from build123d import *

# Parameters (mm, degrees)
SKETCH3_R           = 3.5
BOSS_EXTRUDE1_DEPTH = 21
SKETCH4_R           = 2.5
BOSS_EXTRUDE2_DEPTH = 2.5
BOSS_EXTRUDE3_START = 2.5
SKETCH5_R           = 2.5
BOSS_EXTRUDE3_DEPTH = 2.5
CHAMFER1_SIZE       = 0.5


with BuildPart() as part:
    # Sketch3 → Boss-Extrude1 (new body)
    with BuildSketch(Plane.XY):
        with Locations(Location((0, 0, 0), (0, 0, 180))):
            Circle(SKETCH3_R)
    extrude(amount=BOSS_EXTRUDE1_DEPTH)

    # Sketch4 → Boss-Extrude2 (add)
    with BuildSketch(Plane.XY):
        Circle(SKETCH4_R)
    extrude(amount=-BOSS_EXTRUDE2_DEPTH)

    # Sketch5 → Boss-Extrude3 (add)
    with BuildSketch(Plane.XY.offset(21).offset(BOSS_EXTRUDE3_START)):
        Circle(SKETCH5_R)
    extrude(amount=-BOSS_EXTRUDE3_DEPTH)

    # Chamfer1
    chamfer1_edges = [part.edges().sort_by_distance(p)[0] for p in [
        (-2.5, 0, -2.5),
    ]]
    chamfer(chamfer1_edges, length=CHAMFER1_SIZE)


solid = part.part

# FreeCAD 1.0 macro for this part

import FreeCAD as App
import Part
import Sketcher
from FreeCAD import Vector
Q = App.Units.Quantity


def edges_at(feature, points):
    """Names of the edges that pass closest to the given points."""
    edges = feature.Shape.Edges
    near = lambda p: min(range(len(edges)), key=lambda i: edges[i].distToShape(Part.Vertex(*p))[0])
    return sorted({f"Edge{near(p) + 1}" for p in points})

doc = App.newDocument("Part")
body = doc.addObject("PartDesign::Body", "Body")

# Sketch on XY plane
sketch1 = body.newObject("Sketcher::SketchObject", "Sketch")
sketch1.AttachmentSupport = (doc.getObject("XY_Plane"), [""])
sketch1.MapMode = "FlatFace"
sketch1.addGeometry(Part.Circle(Vector(0, 0, 0), Vector(0, 0, 1), 3.5), False)
sketch1.addConstraint(Sketcher.Constraint("Coincident", 0, 3, -1, 1))
sketch1.addConstraint(Sketcher.Constraint("Diameter", 0, Q("7 mm")))
pad1 = body.newObject("PartDesign::Pad", "Pad")
pad1.Profile = sketch1
pad1.Length = 21

# Sketch on XY plane
sketch2 = body.newObject("Sketcher::SketchObject", "Sketch001")
sketch2.AttachmentSupport = (doc.getObject("XY_Plane"), [""])
sketch2.MapMode = "FlatFace"
sketch2.addGeometry(Part.Circle(Vector(0, 0, 0), Vector(0, 0, 1), 2.5), False)
sketch2.addConstraint(Sketcher.Constraint("Coincident", 0, 3, -1, 1))
sketch2.addConstraint(Sketcher.Constraint("Diameter", 0, Q("5 mm")))
pad2 = body.newObject("PartDesign::Pad", "Pad001")
pad2.Profile = sketch2
pad2.Length = 2.5
pad2.Reversed = True

# Sketch on XY plane
sketch3 = body.newObject("Sketcher::SketchObject", "Sketch002")
sketch3.AttachmentSupport = (doc.getObject("XY_Plane"), [""])
sketch3.MapMode = "FlatFace"
sketch3.AttachmentOffset = App.Placement(Vector(0, 0, 23.5), App.Rotation())
sketch3.addGeometry(Part.Circle(Vector(0, 0, 0), Vector(0, 0, 1), 2.5), False)
sketch3.addConstraint(Sketcher.Constraint("Coincident", 0, 3, -1, 1))
sketch3.addConstraint(Sketcher.Constraint("Diameter", 0, Q("5 mm")))
pad3 = body.newObject("PartDesign::Pad", "Pad002")
pad3.Profile = sketch3
pad3.Length = 2.5
pad3.Reversed = True
doc.recompute()

chamfer = body.newObject("PartDesign::Chamfer", "Chamfer")
chamfer.Base = (pad3, edges_at(pad3, [(-2.5, 0, -2.5)]))
chamfer.Size = 0.5

doc.recompute()
